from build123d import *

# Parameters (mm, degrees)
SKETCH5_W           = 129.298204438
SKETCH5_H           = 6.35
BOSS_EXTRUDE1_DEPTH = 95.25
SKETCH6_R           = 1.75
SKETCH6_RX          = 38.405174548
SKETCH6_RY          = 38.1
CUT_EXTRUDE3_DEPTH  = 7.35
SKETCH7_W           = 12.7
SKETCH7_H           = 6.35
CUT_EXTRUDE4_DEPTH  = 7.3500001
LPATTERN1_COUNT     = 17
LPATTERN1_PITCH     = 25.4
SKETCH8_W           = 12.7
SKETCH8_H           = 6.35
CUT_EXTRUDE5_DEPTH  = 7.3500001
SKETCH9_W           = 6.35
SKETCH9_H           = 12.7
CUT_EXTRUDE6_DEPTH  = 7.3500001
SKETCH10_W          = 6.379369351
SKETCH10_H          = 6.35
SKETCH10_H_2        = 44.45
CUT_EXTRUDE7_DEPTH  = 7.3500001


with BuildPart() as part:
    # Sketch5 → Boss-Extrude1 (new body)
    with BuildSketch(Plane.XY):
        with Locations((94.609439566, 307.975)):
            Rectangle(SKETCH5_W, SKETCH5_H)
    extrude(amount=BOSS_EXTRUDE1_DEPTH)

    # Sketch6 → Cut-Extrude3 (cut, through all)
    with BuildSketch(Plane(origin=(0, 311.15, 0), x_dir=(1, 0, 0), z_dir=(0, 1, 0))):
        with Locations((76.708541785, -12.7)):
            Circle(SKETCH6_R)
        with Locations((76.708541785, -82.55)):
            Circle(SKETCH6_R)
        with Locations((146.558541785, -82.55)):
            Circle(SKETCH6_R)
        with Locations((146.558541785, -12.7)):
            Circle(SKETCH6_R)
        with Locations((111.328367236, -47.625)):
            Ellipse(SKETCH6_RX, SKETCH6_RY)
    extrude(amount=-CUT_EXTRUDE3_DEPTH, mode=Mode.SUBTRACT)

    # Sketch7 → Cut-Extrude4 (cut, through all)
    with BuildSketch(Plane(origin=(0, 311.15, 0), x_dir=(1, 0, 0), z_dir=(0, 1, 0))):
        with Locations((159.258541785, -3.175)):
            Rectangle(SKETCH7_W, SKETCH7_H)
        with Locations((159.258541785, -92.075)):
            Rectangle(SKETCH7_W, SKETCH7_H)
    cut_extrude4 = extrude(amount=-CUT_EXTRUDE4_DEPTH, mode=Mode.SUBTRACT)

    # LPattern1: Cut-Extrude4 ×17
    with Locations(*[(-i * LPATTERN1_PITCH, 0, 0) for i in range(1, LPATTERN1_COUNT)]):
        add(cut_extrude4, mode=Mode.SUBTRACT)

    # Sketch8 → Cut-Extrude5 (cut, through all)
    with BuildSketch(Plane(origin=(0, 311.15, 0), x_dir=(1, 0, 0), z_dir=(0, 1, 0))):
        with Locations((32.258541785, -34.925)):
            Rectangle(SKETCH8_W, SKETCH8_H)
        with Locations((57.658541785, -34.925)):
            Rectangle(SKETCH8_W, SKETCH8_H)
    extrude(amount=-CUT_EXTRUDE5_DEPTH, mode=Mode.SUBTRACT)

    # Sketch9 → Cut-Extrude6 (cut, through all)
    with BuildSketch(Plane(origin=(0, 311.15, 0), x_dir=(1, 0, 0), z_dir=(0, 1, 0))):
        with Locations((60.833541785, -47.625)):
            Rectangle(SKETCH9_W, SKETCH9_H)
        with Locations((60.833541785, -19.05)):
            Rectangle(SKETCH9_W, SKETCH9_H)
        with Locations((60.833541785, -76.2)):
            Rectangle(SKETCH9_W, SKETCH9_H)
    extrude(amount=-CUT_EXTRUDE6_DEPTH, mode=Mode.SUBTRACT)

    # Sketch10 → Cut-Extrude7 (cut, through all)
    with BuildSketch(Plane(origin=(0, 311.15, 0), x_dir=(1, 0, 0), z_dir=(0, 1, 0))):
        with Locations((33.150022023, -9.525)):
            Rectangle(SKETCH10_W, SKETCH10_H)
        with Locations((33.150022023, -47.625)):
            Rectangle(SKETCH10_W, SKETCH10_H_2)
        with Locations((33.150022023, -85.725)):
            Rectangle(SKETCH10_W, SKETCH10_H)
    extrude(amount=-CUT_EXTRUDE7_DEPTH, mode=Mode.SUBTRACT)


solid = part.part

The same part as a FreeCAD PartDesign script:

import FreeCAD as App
import Part
import Sketcher
from FreeCAD import Vector
Q = App.Units.Quantity


def add_polygon(sketch, points):
    """Adds a closed chain of lines whose ends are joined by coincident constraints."""
    first, n = sketch.GeometryCount, len(points)
    for a, b in zip(points, points[1:] + points[:1]):
        sketch.addGeometry(Part.LineSegment(App.Vector(*a, 0), App.Vector(*b, 0)), False)
    for i in range(n):
        sketch.addConstraint(Sketcher.Constraint("Coincident", first + i, 2, first + (i + 1) % n, 1))

doc = App.newDocument("Part")
params = doc.addObject("Spreadsheet::Sheet", "Params")
for row, (alias, value) in enumerate([
    ("sketch1_height", "0.25 in"),
    ("pad1_length", "3.75 in"),
    ("sketch3_width", "0.5 in"),
    ("sketch3_height", "0.25 in"),
    ("linearpattern_pitch", "1 in"),
    ("sketch4_width", "0.5 in"),
    ("sketch4_height", "0.25 in"),
    ("sketch5_height", "0.5 in"),
    ("sketch5_width", "0.25 in"),
    ("sketch6_height", "0.25 in"),
    ("sketch6_height2", "1.75 in"),
], start=1):
    params.set(f"A{row}", alias)
    params.set(f"B{row}", "=" + value)
    params.setAlias(f"B{row}", alias)

body = doc.addObject("PartDesign::Body", "Body")

# Sketch on XY plane
sketch1 = body.newObject("Sketcher::SketchObject", "Sketch")
sketch1.AttachmentSupport = (doc.getObject("XY_Plane"), [""])
sketch1.MapMode = "FlatFace"
add_polygon(sketch1, [(29.960337, 311.15), (29.960337, 304.8), (159.258542, 304.8), (159.258542, 311.15)])  # lines 0-3
sketch1.addConstraint([
    Sketcher.Constraint("Vertical", 0),
    Sketcher.Constraint("Horizontal", 1),
    Sketcher.Constraint("Vertical", 2),
    Sketcher.Constraint("Horizontal", 3),
    Sketcher.Constraint("DistanceY", -1, 1, 0, 2, Q("12 in")),
    Sketcher.Constraint("DistanceY", 0, 2, 0, 1, Q("0.25 in")),
    Sketcher.Constraint("DistanceX", 1, 1, 1, 2, 129.298204),
    Sketcher.Constraint("DistanceX", -1, 1, 1, 2, 159.258542),
])
sketch1.setExpression("Constraints[9]", "Params.sketch1_height")
pad1 = body.newObject("PartDesign::Pad", "Pad")
pad1.Profile = sketch1
pad1.setExpression("Length", "Params.pad1_length")

# Sketch on XZ plane
sketch2 = body.newObject("Sketcher::SketchObject", "Sketch001")
sketch2.AttachmentSupport = (doc.getObject("XZ_Plane"), [""])
sketch2.MapMode = "FlatFace"
sketch2.AttachmentOffset = App.Placement(Vector(0, 0, -12.25 * 25.4), App.Rotation())
sketch2.addGeometry([
    Part.Circle(Vector(76.708542, 12.7, 0), Vector(0, 0, 1), 1.75),  # 0
    Part.Circle(Vector(76.708542, 82.55, 0), Vector(0, 0, 1), 1.75),  # 1
    Part.Circle(Vector(146.558542, 82.55, 0), Vector(0, 0, 1), 1.75),  # 2
    Part.Circle(Vector(146.558542, 12.7, 0), Vector(0, 0, 1), 1.75),  # 3
    Part.Ellipse(Vector(149.733542, 47.625, 0), Vector(111.328367, 85.725, 0), Vector(111.328367, 47.625, 0)),  # 4
], False)
sketch2.addConstraint([
    Sketcher.Constraint("Block", 4),
    Sketcher.Constraint("Equal", 0, 1),
    Sketcher.Constraint("Equal", 1, 2),
    Sketcher.Constraint("Equal", 2, 3),
    Sketcher.Constraint("Horizontal", 1, 3, 2, 3),
    Sketcher.Constraint("Horizontal", 0, 3, 3, 3),
    Sketcher.Constraint("Vertical", 0, 3, 1, 3),
    Sketcher.Constraint("Vertical", 2, 3, 3, 3),
    Sketcher.Constraint("DistanceY", -1, 1, 0, 3, Q("0.5 in")),
    Sketcher.Constraint("Diameter", 0, 3.5),
    Sketcher.Constraint("DistanceY", -1, 1, 1, 3, Q("3.25 in")),
    Sketcher.Constraint("DistanceX", 1, 3, 2, 3, Q("2.75 in")),
    Sketcher.Constraint("DistanceX", -1, 1, 0, 3, 76.708542),
])
pocket1 = body.newObject("PartDesign::Pocket", "Pocket")
pocket1.Profile = sketch2
pocket1.Type = "ThroughAll"
pocket1.Reversed = True

# Sketch on XZ plane
sketch3 = body.newObject("Sketcher::SketchObject", "Sketch002")
sketch3.AttachmentSupport = (doc.getObject("XZ_Plane"), [""])
sketch3.MapMode = "FlatFace"
sketch3.AttachmentOffset = App.Placement(Vector(0, 0, -12.25 * 25.4), App.Rotation())
add_polygon(sketch3, [(152.908542, 0), (152.908542, 6.35), (165.608542, 6.35), (165.608542, 0)])  # lines 0-3
add_polygon(sketch3, [(152.908542, 88.9), (152.908542, 95.25), (165.608542, 95.25), (165.608542, 88.9)])  # lines 4-7
sketch3.addConstraint([
    Sketcher.Constraint("Vertical", 0),
    Sketcher.Constraint("Horizontal", 1),
    Sketcher.Constraint("Vertical", 2),
    Sketcher.Constraint("Horizontal", 3),
    Sketcher.Constraint("Vertical", 4),
    Sketcher.Constraint("Horizontal", 5),
    Sketcher.Constraint("Vertical", 6),
    Sketcher.Constraint("Horizontal", 7),
    Sketcher.Constraint("PointOnObject", 2, 2, -1),
    Sketcher.Constraint("Vertical", 3, 2, 4, 2),
    Sketcher.Constraint("Vertical", 2, 2, 5, 2),
    Sketcher.Constraint("Equal", 2, 4),
    Sketcher.Constraint("DistanceX", 1, 1, 1, 2, Q("0.5 in")),
    Sketcher.Constraint("DistanceY", 0, 1, 0, 2, Q("0.25 in")),
    Sketcher.Constraint("DistanceY", -1, 1, 6, 2, Q("3.5 in")),
    Sketcher.Constraint("DistanceX", -1, 1, 0, 2, 152.908542),
])
sketch3.setExpression("Constraints[20]", "Params.sketch3_width")
sketch3.setExpression("Constraints[21]", "Params.sketch3_height")
pocket2 = body.newObject("PartDesign::Pocket", "Pocket001")
pocket2.Profile = sketch3
pocket2.Type = "ThroughAll"
pocket2.Reversed = True
doc.recompute()

linearpattern = body.newObject("PartDesign::LinearPattern", "LinearPattern")
linearpattern.Originals = [pocket2]
linearpattern.Direction = (doc.getObject("X_Axis"), [""])
linearpattern.Mode = "offset"
linearpattern.setExpression("Offset", "Params.linearpattern_pitch")
linearpattern.Occurrences = 17
linearpattern.Reversed = True
body.Tip = linearpattern

# Sketch on XZ plane
sketch4 = body.newObject("Sketcher::SketchObject", "Sketch003")
sketch4.AttachmentSupport = (doc.getObject("XZ_Plane"), [""])
sketch4.MapMode = "FlatFace"
sketch4.AttachmentOffset = App.Placement(Vector(0, 0, -12.25 * 25.4), App.Rotation())
add_polygon(sketch4, [(25.908542, 31.75), (25.908542, 38.1), (38.608542, 38.1), (38.608542, 31.75)])  # lines 0-3
add_polygon(sketch4, [(51.308542, 31.75), (51.308542, 38.1), (64.008542, 38.1), (64.008542, 31.75)])  # lines 4-7
sketch4.addConstraint([
    Sketcher.Constraint("Vertical", 0),
    Sketcher.Constraint("Horizontal", 1),
    Sketcher.Constraint("Vertical", 2),
    Sketcher.Constraint("Horizontal", 3),
    Sketcher.Constraint("Vertical", 4),
    Sketcher.Constraint("Horizontal", 5),
    Sketcher.Constraint("Vertical", 6),
    Sketcher.Constraint("Horizontal", 7),
    Sketcher.Constraint("Horizontal", 1, 2, 4, 2),
    Sketcher.Constraint("Horizontal", 3, 2, 6, 2),
    Sketcher.Constraint("Equal", 3, 5),
    Sketcher.Constraint("DistanceX", 1, 1, 1, 2, Q("0.5 in")),
    Sketcher.Constraint("DistanceX", 0, 2, 4, 2, Q("1 in")),
    Sketcher.Constraint("DistanceY", 0, 1, 0, 2, Q("0.25 in")),
    Sketcher.Constraint("DistanceY", -1, 1, 0, 2, Q("1.5 in")),
    Sketcher.Constraint("DistanceX", -1, 1, 0, 2, 25.908542),
])
sketch4.setExpression("Constraints[19]", "Params.sketch4_width")
sketch4.setExpression("Constraints[21]", "Params.sketch4_height")
pocket3 = body.newObject("PartDesign::Pocket", "Pocket002")
pocket3.Profile = sketch4
pocket3.Type = "ThroughAll"
pocket3.Reversed = True

# Sketch on XZ plane
sketch5 = body.newObject("Sketcher::SketchObject", "Sketch004")
sketch5.AttachmentSupport = (doc.getObject("XZ_Plane"), [""])
sketch5.MapMode = "FlatFace"
sketch5.AttachmentOffset = App.Placement(Vector(0, 0, -12.25 * 25.4), App.Rotation())
add_polygon(sketch5, [(57.658542, 41.275), (57.658542, 53.975), (64.008542, 53.975), (64.008542, 41.275)])  # lines 0-3
add_polygon(sketch5, [(57.658542, 12.7), (57.658542, 25.4), (64.008542, 25.4), (64.008542, 12.7)])  # lines 4-7
add_polygon(sketch5, [(57.658542, 69.85), (57.658542, 82.55), (64.008542, 82.55), (64.008542, 69.85)])  # lines 8-11
sketch5.addConstraint([
    Sketcher.Constraint("Vertical", 0),
    Sketcher.Constraint("Horizontal", 1),
    Sketcher.Constraint("Vertical", 2),
    Sketcher.Constraint("Horizontal", 3),
    Sketcher.Constraint("Vertical", 4),
    Sketcher.Constraint("Horizontal", 5),
    Sketcher.Constraint("Vertical", 6),
    Sketcher.Constraint("Horizontal", 7),
    Sketcher.Constraint("Vertical", 8),
    Sketcher.Constraint("Horizontal", 9),
    Sketcher.Constraint("Vertical", 10),
    Sketcher.Constraint("Horizontal", 11),
    Sketcher.Constraint("Vertical", 3, 2, 4, 2),
    Sketcher.Constraint("Vertical", 2, 2, 5, 2),
    Sketcher.Constraint("Vertical", 7, 2, 8, 2),
    Sketcher.Constraint("Vertical", 6, 2, 9, 2),
    Sketcher.Constraint("Equal", 2, 4),
    Sketcher.Constraint("Equal", 6, 8),
    Sketcher.Constraint("DistanceY", 0, 1, 0, 2, Q("0.5 in")),
    Sketcher.Constraint("DistanceY", -1, 1, 4, 2, Q("1 in")),
    Sketcher.Constraint("DistanceX", 1, 1, 1, 2, Q("0.25 in")),
    Sketcher.Constraint("DistanceY", -1, 1, 8, 2, Q("3.25 in")),
    Sketcher.Constraint("DistanceY", -1, 1, 0, 2, Q("2.125 in")),
    Sketcher.Constraint("DistanceX", -1, 1, 0, 2, 57.658542),
])
sketch5.setExpression("Constraints[30]", "Params.sketch5_height")
sketch5.setExpression("Constraints[32]", "Params.sketch5_width")
pocket4 = body.newObject("PartDesign::Pocket", "Pocket003")
pocket4.Profile = sketch5
pocket4.Type = "ThroughAll"
pocket4.Reversed = True

# Sketch on XZ plane
sketch6 = body.newObject("Sketcher::SketchObject", "Sketch005")
sketch6.AttachmentSupport = (doc.getObject("XZ_Plane"), [""])
sketch6.MapMode = "FlatFace"
sketch6.AttachmentOffset = App.Placement(Vector(0, 0, -12.25 * 25.4), App.Rotation())
add_polygon(sketch6, [(29.960337, 6.35), (29.960337, 12.7), (36.339707, 12.7), (36.339707, 6.35)])  # lines 0-3
add_polygon(sketch6, [(29.960337, 25.4), (29.960337, 69.85), (36.339707, 69.85), (36.339707, 25.4)])  # lines 4-7
add_polygon(sketch6, [(29.960337, 82.55), (29.960337, 88.9), (36.339707, 88.9), (36.339707, 82.55)])  # lines 8-11
sketch6.addConstraint([
    Sketcher.Constraint("Vertical", 0),
    Sketcher.Constraint("Horizontal", 1),
    Sketcher.Constraint("Vertical", 2),
    Sketcher.Constraint("Horizontal", 3),
    Sketcher.Constraint("Vertical", 4),
    Sketcher.Constraint("Horizontal", 5),
    Sketcher.Constraint("Vertical", 6),
    Sketcher.Constraint("Horizontal", 7),
    Sketcher.Constraint("Vertical", 8),
    Sketcher.Constraint("Horizontal", 9),
    Sketcher.Constraint("Vertical", 10),
    Sketcher.Constraint("Horizontal", 11),
    Sketcher.Constraint("Vertical", 3, 2, 4, 2),
    Sketcher.Constraint("Vertical", 2, 2, 5, 2),
    Sketcher.Constraint("Vertical", 7, 2, 8, 2),
    Sketcher.Constraint("Vertical", 6, 2, 9, 2),
    Sketcher.Constraint("Equal", 2, 8),
    Sketcher.Constraint("DistanceY", -1, 1, 6, 2, Q("1 in")),
    Sketcher.Constraint("DistanceY", 0, 2, 8, 2, Q("3 in")),
    Sketcher.Constraint("DistanceY", 0, 1, 0, 2, Q("0.25 in")),
    Sketcher.Constraint("DistanceY", 4, 1, 4, 2, Q("1.75 in")),
    Sketcher.Constraint("DistanceY", -1, 1, 0, 2, Q("0.5 in")),
    Sketcher.Constraint("DistanceX", 1, 1, 1, 2, 6.379369),
    Sketcher.Constraint("DistanceX", -1, 1, 0, 2, 29.960337),
])
sketch6.setExpression("Constraints[31]", "Params.sketch6_height")
sketch6.setExpression("Constraints[32]", "Params.sketch6_height2")
pocket5 = body.newObject("PartDesign::Pocket", "Pocket004")
pocket5.Profile = sketch6
pocket5.Type = "ThroughAll"
pocket5.Reversed = True

doc.recompute()
